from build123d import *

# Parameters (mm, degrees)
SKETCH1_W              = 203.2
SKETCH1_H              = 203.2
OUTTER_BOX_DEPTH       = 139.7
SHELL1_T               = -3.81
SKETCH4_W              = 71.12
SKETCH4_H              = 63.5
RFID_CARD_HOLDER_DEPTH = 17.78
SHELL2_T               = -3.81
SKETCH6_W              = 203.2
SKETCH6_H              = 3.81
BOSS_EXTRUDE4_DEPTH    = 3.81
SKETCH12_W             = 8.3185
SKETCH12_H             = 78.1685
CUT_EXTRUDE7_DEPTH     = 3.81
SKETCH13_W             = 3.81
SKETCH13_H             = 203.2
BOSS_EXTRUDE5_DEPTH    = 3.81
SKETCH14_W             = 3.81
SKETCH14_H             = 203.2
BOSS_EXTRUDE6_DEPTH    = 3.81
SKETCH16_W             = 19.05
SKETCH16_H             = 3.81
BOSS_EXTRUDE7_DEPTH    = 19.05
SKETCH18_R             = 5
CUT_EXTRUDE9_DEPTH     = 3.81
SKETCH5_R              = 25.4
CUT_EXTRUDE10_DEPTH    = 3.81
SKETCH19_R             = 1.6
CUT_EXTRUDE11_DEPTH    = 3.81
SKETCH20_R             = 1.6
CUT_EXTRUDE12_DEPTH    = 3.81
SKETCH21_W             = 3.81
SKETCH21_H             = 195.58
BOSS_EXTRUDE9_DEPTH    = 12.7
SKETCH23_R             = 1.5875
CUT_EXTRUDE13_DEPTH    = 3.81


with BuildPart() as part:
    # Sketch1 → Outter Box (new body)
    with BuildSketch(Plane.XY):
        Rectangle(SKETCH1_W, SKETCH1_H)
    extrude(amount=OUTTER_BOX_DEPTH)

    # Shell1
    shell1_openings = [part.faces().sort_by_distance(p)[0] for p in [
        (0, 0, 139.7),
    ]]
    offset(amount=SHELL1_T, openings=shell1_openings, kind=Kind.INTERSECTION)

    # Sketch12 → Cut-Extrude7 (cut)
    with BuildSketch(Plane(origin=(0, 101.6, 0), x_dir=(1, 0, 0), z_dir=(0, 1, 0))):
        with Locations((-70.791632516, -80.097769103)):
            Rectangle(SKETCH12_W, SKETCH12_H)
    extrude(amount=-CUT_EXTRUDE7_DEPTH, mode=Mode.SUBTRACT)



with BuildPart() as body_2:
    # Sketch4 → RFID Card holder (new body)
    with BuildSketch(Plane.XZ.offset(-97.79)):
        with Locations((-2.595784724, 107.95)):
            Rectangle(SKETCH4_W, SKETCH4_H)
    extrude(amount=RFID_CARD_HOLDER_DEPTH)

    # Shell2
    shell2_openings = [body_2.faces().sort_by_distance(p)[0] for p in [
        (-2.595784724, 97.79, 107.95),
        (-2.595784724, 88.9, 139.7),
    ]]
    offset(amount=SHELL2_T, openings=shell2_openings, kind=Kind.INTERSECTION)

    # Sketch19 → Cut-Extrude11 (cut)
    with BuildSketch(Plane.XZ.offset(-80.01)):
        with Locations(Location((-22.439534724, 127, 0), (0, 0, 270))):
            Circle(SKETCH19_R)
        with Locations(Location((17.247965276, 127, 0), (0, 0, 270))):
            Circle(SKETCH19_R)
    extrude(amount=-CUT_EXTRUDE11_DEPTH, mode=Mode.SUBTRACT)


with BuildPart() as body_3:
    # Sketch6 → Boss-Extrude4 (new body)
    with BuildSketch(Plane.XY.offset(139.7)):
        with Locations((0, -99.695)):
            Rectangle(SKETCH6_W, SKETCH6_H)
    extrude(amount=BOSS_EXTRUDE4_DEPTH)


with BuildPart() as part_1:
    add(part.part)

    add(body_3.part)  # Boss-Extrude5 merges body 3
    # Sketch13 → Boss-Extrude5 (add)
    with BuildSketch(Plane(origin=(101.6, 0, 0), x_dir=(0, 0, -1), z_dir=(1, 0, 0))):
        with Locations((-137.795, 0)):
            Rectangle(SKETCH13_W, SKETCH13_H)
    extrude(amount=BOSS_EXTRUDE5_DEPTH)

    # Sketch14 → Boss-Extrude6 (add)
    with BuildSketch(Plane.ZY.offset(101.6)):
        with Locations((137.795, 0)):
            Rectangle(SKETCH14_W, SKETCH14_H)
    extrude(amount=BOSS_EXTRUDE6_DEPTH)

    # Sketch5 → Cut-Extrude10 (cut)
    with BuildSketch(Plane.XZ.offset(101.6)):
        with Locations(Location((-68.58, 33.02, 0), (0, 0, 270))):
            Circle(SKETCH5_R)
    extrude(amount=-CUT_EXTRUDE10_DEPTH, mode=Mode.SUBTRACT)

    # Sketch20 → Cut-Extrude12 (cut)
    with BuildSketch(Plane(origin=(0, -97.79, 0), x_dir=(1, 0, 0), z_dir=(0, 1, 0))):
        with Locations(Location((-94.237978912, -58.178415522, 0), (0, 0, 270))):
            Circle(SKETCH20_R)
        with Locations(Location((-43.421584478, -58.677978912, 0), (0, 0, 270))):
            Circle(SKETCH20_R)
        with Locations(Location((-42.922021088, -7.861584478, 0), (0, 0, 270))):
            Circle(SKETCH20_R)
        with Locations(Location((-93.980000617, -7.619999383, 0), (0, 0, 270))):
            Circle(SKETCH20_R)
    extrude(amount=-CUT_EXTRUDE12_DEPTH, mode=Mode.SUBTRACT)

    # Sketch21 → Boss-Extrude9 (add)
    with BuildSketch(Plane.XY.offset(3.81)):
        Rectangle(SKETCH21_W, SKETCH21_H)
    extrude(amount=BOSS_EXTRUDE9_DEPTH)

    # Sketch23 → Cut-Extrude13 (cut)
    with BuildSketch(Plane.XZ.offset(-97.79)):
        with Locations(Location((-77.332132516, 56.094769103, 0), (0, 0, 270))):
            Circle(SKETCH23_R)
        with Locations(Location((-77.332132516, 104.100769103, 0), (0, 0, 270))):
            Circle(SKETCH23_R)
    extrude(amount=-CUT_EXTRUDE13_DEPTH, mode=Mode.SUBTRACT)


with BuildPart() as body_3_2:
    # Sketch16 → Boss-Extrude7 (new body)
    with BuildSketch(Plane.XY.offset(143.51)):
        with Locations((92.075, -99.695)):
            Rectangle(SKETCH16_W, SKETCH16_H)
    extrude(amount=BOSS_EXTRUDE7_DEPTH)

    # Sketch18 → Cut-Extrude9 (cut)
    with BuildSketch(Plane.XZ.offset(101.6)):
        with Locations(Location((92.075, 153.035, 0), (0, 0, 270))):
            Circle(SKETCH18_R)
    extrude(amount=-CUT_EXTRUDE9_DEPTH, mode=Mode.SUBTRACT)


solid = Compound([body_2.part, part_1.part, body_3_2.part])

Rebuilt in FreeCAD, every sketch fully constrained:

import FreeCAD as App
import Part
import Sketcher
from FreeCAD import Vector
Q = App.Units.Quantity


def faces_at(feature, points):
    """Names of the faces that lie closest to the given points."""
    faces = feature.Shape.Faces
    near = lambda p: min(range(len(faces)), key=lambda i: faces[i].distToShape(Part.Vertex(*p))[0])
    return sorted({f"Face{near(p) + 1}" for p in points})

doc = App.newDocument("Part")
body = doc.addObject("PartDesign::Body", "Body")

sketch1 = body.newObject("Sketcher::SketchObject", "Sketch")
sketch1.AttachmentSupport = (doc.getObject("XY_Plane"), [""])
sketch1.MapMode = "FlatFace"
sketch1.addGeometry([
    Part.LineSegment(Vector(-102, 102, 0), Vector(-102, -102, 0)),
    Part.LineSegment(Vector(-102, -102, 0), Vector(102, -102, 0)),
    Part.LineSegment(Vector(102, -102, 0), Vector(102, 102, 0)),
    Part.LineSegment(Vector(102, 102, 0), Vector(-102, 102, 0)),
], False)
sketch1.addConstraint([
    Sketcher.Constraint("Coincident", 0, 2, 1, 1),
    Sketcher.Constraint("Coincident", 1, 2, 2, 1),
    Sketcher.Constraint("Coincident", 2, 2, 3, 1),
    Sketcher.Constraint("Coincident", 3, 2, 0, 1),
    Sketcher.Constraint("Vertical", 0),
    Sketcher.Constraint("Horizontal", 1),
    Sketcher.Constraint("Vertical", 2),
    Sketcher.Constraint("Horizontal", 3),
    Sketcher.Constraint("Symmetric", 0, 2, 2, 2, -1, 1),
    Sketcher.Constraint("Equal", 3, 0),
    Sketcher.Constraint("DistanceX", 1, 1, 1, 2, Q("8 in")),
])
pad1 = body.newObject("PartDesign::Pad", "Pad")
pad1.Profile = sketch1
pad1.Length = Q("5.5 in")
doc.recompute()

thickness = body.newObject("PartDesign::Thickness", "Thickness")
thickness.Base = (pad1, faces_at(pad1, [(0, 0, 139.7)]))
thickness.Value = Q("0.15 in")
thickness.Reversed = True
thickness.Join = "Intersection"

sketch2 = body.newObject("Sketcher::SketchObject", "Sketch001")
sketch2.AttachmentSupport = (doc.getObject("XZ_Plane"), [""])
sketch2.MapMode = "FlatFace"
sketch2.AttachmentOffset = App.Placement(Vector(0, 0, -4 * 25.4), App.Rotation())
sketch2.addGeometry([
    Part.LineSegment(Vector(-75, 41, 0), Vector(-75, 119, 0)),
    Part.LineSegment(Vector(-75, 119, 0), Vector(-67, 119, 0)),
    Part.LineSegment(Vector(-67, 119, 0), Vector(-67, 41, 0)),
    Part.LineSegment(Vector(-67, 41, 0), Vector(-75, 41, 0)),
], False)
sketch2.addConstraint([
    Sketcher.Constraint("Coincident", 0, 2, 1, 1),
    Sketcher.Constraint("Coincident", 1, 2, 2, 1),
    Sketcher.Constraint("Coincident", 2, 2, 3, 1),
    Sketcher.Constraint("Coincident", 3, 2, 0, 1),
    Sketcher.Constraint("Vertical", 0),
    Sketcher.Constraint("Horizontal", 1),
    Sketcher.Constraint("Vertical", 2),
    Sketcher.Constraint("Horizontal", 3),
    Sketcher.Constraint("DistanceX", 1, 1, 1, 2, Q("0.3275 in")),
    Sketcher.Constraint("DistanceY", 0, 1, 0, 2, Q("3.0775 in")),
    Sketcher.Constraint("DistanceY", -1, 1, 0, 2, Q("119.182019 mm")),
    Sketcher.Constraint("DistanceX", 0, 2, -1, 1, Q("74.950883 mm")),
])
pocket1 = body.newObject("PartDesign::Pocket", "Pocket")
pocket1.Profile = sketch2
pocket1.Length = Q("0.15 in")
pocket1.Reversed = True
body2 = doc.addObject("PartDesign::Body", "Body001")

sketch3 = body2.newObject("Sketcher::SketchObject", "Sketch002")
sketch3.AttachmentSupport = (doc.getObject("XZ_Plane001"), [""])
sketch3.MapMode = "FlatFace"
sketch3.AttachmentOffset = App.Placement(Vector(0, 0, -3.85 * 25.4), App.Rotation())
sketch3.addGeometry([
    Part.LineSegment(Vector(-38, 140, 0), Vector(-38, 76, 0)),
    Part.LineSegment(Vector(-38, 76, 0), Vector(33, 76, 0)),
    Part.LineSegment(Vector(33, 76, 0), Vector(33, 140, 0)),
    Part.LineSegment(Vector(33, 140, 0), Vector(-38, 140, 0)),
], False)
sketch3.addConstraint([
    Sketcher.Constraint("Coincident", 0, 2, 1, 1),
    Sketcher.Constraint("Coincident", 1, 2, 2, 1),
    Sketcher.Constraint("Coincident", 2, 2, 3, 1),
    Sketcher.Constraint("Coincident", 3, 2, 0, 1),
    Sketcher.Constraint("Vertical", 0),
    Sketcher.Constraint("Horizontal", 1),
    Sketcher.Constraint("Vertical", 2),
    Sketcher.Constraint("Horizontal", 3),
    Sketcher.Constraint("DistanceX", 1, 1, 1, 2, Q("2.8 in")),
    Sketcher.Constraint("DistanceY", 0, 2, 0, 1, Q("2.5 in")),
    Sketcher.Constraint("DistanceY", -1, 1, 0, 2, Q("3 in")),
    Sketcher.Constraint("DistanceX", 0, 2, -1, 1, Q("38.155785 mm")),
])
pad2 = body2.newObject("PartDesign::Pad", "Pad001")
pad2.Profile = sketch3
pad2.Length = Q("0.7 in")
doc.recompute()

thickness2 = body2.newObject("PartDesign::Thickness", "Thickness001")
thickness2.Base = (pad2, faces_at(pad2, [(-2.596, 97.79, 107.95), (-2.596, 88.9, 139.7)]))
thickness2.Value = Q("0.15 in")
thickness2.Reversed = True
thickness2.Join = "Intersection"

sketch4 = body2.newObject("Sketcher::SketchObject", "Sketch003")
sketch4.AttachmentSupport = (doc.getObject("XZ_Plane001"), [""])
sketch4.MapMode = "FlatFace"
sketch4.AttachmentOffset = App.Placement(Vector(0, 0, -3.15 * 25.4), App.Rotation())
sketch4.addGeometry([
    Part.Circle(Vector(-22.4, 127, 0), Vector(0, 0, 1), 1.6),
    Part.Circle(Vector(17.2, 127, 0), Vector(0, 0, 1), 1.6),
], False)
sketch4.addConstraint([
    Sketcher.Constraint("Equal", 0, 1),
    Sketcher.Constraint("Horizontal", 0, 3, 1, 3),
    Sketcher.Constraint("DistanceY", -1, 1, 0, 3, Q("5 in")),
    Sketcher.Constraint("Diameter", 0, Q("3.2 mm")),
    Sketcher.Constraint("DistanceX", 0, 3, 1, 3, Q("1.5625 in")),
    Sketcher.Constraint("DistanceX", 0, 3, -1, 1, Q("22.439535 mm")),
])
pocket2 = body2.newObject("PartDesign::Pocket", "Pocket001")
pocket2.Profile = sketch4
pocket2.Length = Q("0.15 in")
body3 = doc.addObject("PartDesign::Body", "Body002")

sketch5 = body3.newObject("Sketcher::SketchObject", "Sketch004")
sketch5.AttachmentSupport = (doc.getObject("XY_Plane002"), [""])
sketch5.MapMode = "FlatFace"
sketch5.AttachmentOffset = App.Placement(Vector(0, 0, 5.5 * 25.4), App.Rotation())
sketch5.addGeometry([
    Part.LineSegment(Vector(-101.6, -97.8, 0), Vector(-101.6, -101.6, 0)),
    Part.LineSegment(Vector(-101.6, -101.6, 0), Vector(101.6, -101.6, 0)),
    Part.LineSegment(Vector(101.6, -101.6, 0), Vector(101.6, -97.8, 0)),
    Part.LineSegment(Vector(101.6, -97.8, 0), Vector(-101.6, -97.8, 0)),
], False)
sketch5.addConstraint([
    Sketcher.Constraint("Coincident", 0, 2, 1, 1),
    Sketcher.Constraint("Coincident", 1, 2, 2, 1),
    Sketcher.Constraint("Coincident", 2, 2, 3, 1),
    Sketcher.Constraint("Coincident", 3, 2, 0, 1),
    Sketcher.Constraint("Vertical", 0),
    Sketcher.Constraint("Horizontal", 1),
    Sketcher.Constraint("Vertical", 2),
    Sketcher.Constraint("Horizontal", 3),
    Sketcher.Constraint("DistanceX", 1, 1, 1, 2, Q("8 in")),
    Sketcher.Constraint("DistanceX", 0, 2, -1, 1, Q("4 in")),
    Sketcher.Constraint("DistanceY", 0, 2, -1, 1, Q("4 in")),
    Sketcher.Constraint("DistanceY", 0, 2, 0, 1, Q("0.15 in")),
])
pad3 = body3.newObject("PartDesign::Pad", "Pad002")
pad3.Profile = sketch5
pad3.Length = Q("0.15 in")
doc.recompute()

boolean = body.newObject("PartDesign::Boolean", "Boolean")
boolean.Type = "Fuse"
boolean.addObjects([body3])

sketch6 = body.newObject("Sketcher::SketchObject", "Sketch005")
sketch6.AttachmentSupport = (doc.getObject("YZ_Plane"), [""])
sketch6.MapMode = "FlatFace"
sketch6.AttachmentOffset = App.Placement(Vector(0, 0, 4 * 25.4), App.Rotation())
sketch6.addGeometry([
    Part.LineSegment(Vector(101.6, 139.7, 0), Vector(-101.6, 139.7, 0)),
    Part.LineSegment(Vector(-101.6, 139.7, 0), Vector(-101.6, 135.9, 0)),
    Part.LineSegment(Vector(-101.6, 135.9, 0), Vector(101.6, 135.9, 0)),
    Part.LineSegment(Vector(101.6, 135.9, 0), Vector(101.6, 139.7, 0)),
], False)
sketch6.addConstraint([
    Sketcher.Constraint("Coincident", 0, 2, 1, 1),
    Sketcher.Constraint("Coincident", 1, 2, 2, 1),
    Sketcher.Constraint("Coincident", 2, 2, 3, 1),
    Sketcher.Constraint("Coincident", 3, 2, 0, 1),
    Sketcher.Constraint("Horizontal", 0),
    Sketcher.Constraint("Vertical", 1),
    Sketcher.Constraint("Horizontal", 2),
    Sketcher.Constraint("Vertical", 3),
    Sketcher.Constraint("DistanceX", 0, 2, 0, 1, Q("8 in")),
    Sketcher.Constraint("DistanceX", 0, 2, -1, 1, Q("4 in")),
    Sketcher.Constraint("DistanceY", 1, 2, 1, 1, Q("0.15 in")),
    Sketcher.Constraint("DistanceY", -1, 1, 0, 2, Q("5.5 in")),
])
pad4 = body.newObject("PartDesign::Pad", "Pad003")
pad4.Profile = sketch6
pad4.Length = Q("0.15 in")

sketch7 = body.newObject("Sketcher::SketchObject", "Sketch006")
sketch7.AttachmentSupport = (doc.getObject("YZ_Plane"), [""])
sketch7.MapMode = "FlatFace"
sketch7.AttachmentOffset = App.Placement(Vector(0, 0, -4 * 25.4), App.Rotation())
sketch7.addGeometry([
    Part.LineSegment(Vector(101.6, 135.9, 0), Vector(-101.6, 135.9, 0)),
    Part.LineSegment(Vector(-101.6, 135.9, 0), Vector(-101.6, 139.7, 0)),
    Part.LineSegment(Vector(-101.6, 139.7, 0), Vector(101.6, 139.7, 0)),
    Part.LineSegment(Vector(101.6, 139.7, 0), Vector(101.6, 135.9, 0)),
], False)
sketch7.addConstraint([
    Sketcher.Constraint("Coincident", 0, 2, 1, 1),
    Sketcher.Constraint("Coincident", 1, 2, 2, 1),
    Sketcher.Constraint("Coincident", 2, 2, 3, 1),
    Sketcher.Constraint("Coincident", 3, 2, 0, 1),
    Sketcher.Constraint("Horizontal", 0),
    Sketcher.Constraint("Vertical", 1),
    Sketcher.Constraint("Horizontal", 2),
    Sketcher.Constraint("Vertical", 3),
    Sketcher.Constraint("DistanceX", 0, 2, 0, 1, Q("8 in")),
    Sketcher.Constraint("DistanceX", 0, 2, -1, 1, Q("4 in")),
    Sketcher.Constraint("DistanceY", 1, 1, 1, 2, Q("0.15 in")),
    Sketcher.Constraint("DistanceY", -1, 1, 1, 2, Q("5.5 in")),
])
pad5 = body.newObject("PartDesign::Pad", "Pad004")
pad5.Profile = sketch7
pad5.Length = Q("0.15 in")
pad5.Reversed = True

sketch8 = body.newObject("Sketcher::SketchObject", "Sketch007")
sketch8.AttachmentSupport = (doc.getObject("XZ_Plane"), [""])
sketch8.MapMode = "FlatFace"
sketch8.AttachmentOffset = App.Placement(Vector(0, 0, 4 * 25.4), App.Rotation())
sketch8.addGeometry(Part.Circle(Vector(-69, 33, 0), Vector(0, 0, 1), 25), False)
sketch8.addConstraint([
    Sketcher.Constraint("Diameter", 0, Q("2 in")),
    Sketcher.Constraint("DistanceX", 0, 3, -1, 1, Q("2.7 in")),
    Sketcher.Constraint("DistanceY", -1, 1, 0, 3, Q("1.3 in")),
])
pocket3 = body.newObject("PartDesign::Pocket", "Pocket002")
pocket3.Profile = sketch8
pocket3.Length = Q("0.15 in")

sketch9 = body.newObject("Sketcher::SketchObject", "Sketch008")
sketch9.AttachmentSupport = (doc.getObject("XZ_Plane"), [""])
sketch9.MapMode = "FlatFace"
sketch9.AttachmentOffset = App.Placement(Vector(0, 0, 3.85 * 25.4), App.Rotation())
sketch9.addGeometry([
    Part.Circle(Vector(-94.2, 58.2, 0), Vector(0, 0, 1), 1.6),
    Part.Circle(Vector(-43.4, 58.7, 0), Vector(0, 0, 1), 1.6),
    Part.Circle(Vector(-42.9, 7.9, 0), Vector(0, 0, 1), 1.6),
    Part.Circle(Vector(-94, 7.6, 0), Vector(0, 0, 1), 1.6),
], False)
sketch9.addConstraint([
    Sketcher.Constraint("Equal", 0, 1),
    Sketcher.Constraint("Equal", 1, 2),
    Sketcher.Constraint("Equal", 2, 3),
    Sketcher.Constraint("DistanceX", 3, 3, -1, 1, Q("3.7 in")),
    Sketcher.Constraint("DistanceY", -1, 1, 3, 3, Q("0.3 in")),
    Sketcher.Constraint("Diameter", 0, Q("3.2 mm")),
    Sketcher.Constraint("DistanceX", 0, 3, -1, 1, Q("94.237979 mm")),
    Sketcher.Constraint("DistanceY", -1, 1, 1, 3, Q("58.677979 mm")),
    Sketcher.Constraint("DistanceX", 2, 3, -1, 1, Q("42.922021 mm")),
    Sketcher.Constraint("DistanceY", 2, 3, 0, 3, Q("50.316831 mm")),
    Sketcher.Constraint("DistanceY", -1, 1, 0, 3, Q("58.178416 mm")),
    Sketcher.Constraint("DistanceX", 1, 3, -1, 1, Q("43.421584 mm")),
])
pocket4 = body.newObject("PartDesign::Pocket", "Pocket003")
pocket4.Profile = sketch9
pocket4.Length = Q("0.15 in")
pocket4.Reversed = True

sketch10 = body.newObject("Sketcher::SketchObject", "Sketch009")
sketch10.AttachmentSupport = (doc.getObject("XY_Plane"), [""])
sketch10.MapMode = "FlatFace"
sketch10.AttachmentOffset = App.Placement(Vector(0, 0, 0.15 * 25.4), App.Rotation())
sketch10.addGeometry([
    Part.LineSegment(Vector(-1.9, 97.8, 0), Vector(-1.9, -97.8, 0)),
    Part.LineSegment(Vector(-1.9, -97.8, 0), Vector(1.9, -97.8, 0)),
    Part.LineSegment(Vector(1.9, -97.8, 0), Vector(1.9, 97.8, 0)),
    Part.LineSegment(Vector(1.9, 97.8, 0), Vector(-1.9, 97.8, 0)),
], False)
sketch10.addConstraint([
    Sketcher.Constraint("Coincident", 0, 2, 1, 1),
    Sketcher.Constraint("Coincident", 1, 2, 2, 1),
    Sketcher.Constraint("Coincident", 2, 2, 3, 1),
    Sketcher.Constraint("Coincident", 3, 2, 0, 1),
    Sketcher.Constraint("Vertical", 0),
    Sketcher.Constraint("Horizontal", 1),
    Sketcher.Constraint("Vertical", 2),
    Sketcher.Constraint("Horizontal", 3),
    Sketcher.Constraint("Symmetric", 0, 2, 2, 2, -1, 1),
    Sketcher.Constraint("DistanceY", 0, 2, 0, 1, Q("7.7 in")),
    Sketcher.Constraint("DistanceX", 1, 1, 1, 2, Q("0.15 in")),
])
pad6 = body.newObject("PartDesign::Pad", "Pad005")
pad6.Profile = sketch10
pad6.Length = Q("0.5 in")

sketch11 = body.newObject("Sketcher::SketchObject", "Sketch010")
sketch11.AttachmentSupport = (doc.getObject("XZ_Plane"), [""])
sketch11.MapMode = "FlatFace"
sketch11.AttachmentOffset = App.Placement(Vector(0, 0, -3.85 * 25.4), App.Rotation())
sketch11.addGeometry([
    Part.Circle(Vector(-77.3, 56.1, 0), Vector(0, 0, 1), 1.6),
    Part.Circle(Vector(-77.3, 104.1, 0), Vector(0, 0, 1), 1.6),
], False)
sketch11.addConstraint([
    Sketcher.Constraint("Equal", 0, 1),
    Sketcher.Constraint("Vertical", 0, 3, 1, 3),
    Sketcher.Constraint("Diameter", 0, Q("0.125 in")),
    Sketcher.Constraint("DistanceY", 0, 3, 1, 3, Q("1.89 in")),
    Sketcher.Constraint("DistanceY", -1, 1, 0, 3, Q("56.094769 mm")),
    Sketcher.Constraint("DistanceX", 0, 3, -1, 1, Q("77.332133 mm")),
])
pocket5 = body.newObject("PartDesign::Pocket", "Pocket004")
pocket5.Profile = sketch11
pocket5.Length = Q("0.15 in")
body4 = doc.addObject("PartDesign::Body", "Body003")

sketch12 = body4.newObject("Sketcher::SketchObject", "Sketch011")
sketch12.AttachmentSupport = (doc.getObject("XY_Plane003"), [""])
sketch12.MapMode = "FlatFace"
sketch12.AttachmentOffset = App.Placement(Vector(0, 0, 5.65 * 25.4), App.Rotation())
sketch12.addGeometry([
    Part.LineSegment(Vector(82.5, -97.8, 0), Vector(82.5, -101.6, 0)),
    Part.LineSegment(Vector(82.5, -101.6, 0), Vector(101.6, -101.6, 0)),
    Part.LineSegment(Vector(101.6, -101.6, 0), Vector(101.6, -97.8, 0)),
    Part.LineSegment(Vector(101.6, -97.8, 0), Vector(82.5, -97.8, 0)),
], False)
sketch12.addConstraint([
    Sketcher.Constraint("Coincident", 0, 2, 1, 1),
    Sketcher.Constraint("Coincident", 1, 2, 2, 1),
    Sketcher.Constraint("Coincident", 2, 2, 3, 1),
    Sketcher.Constraint("Coincident", 3, 2, 0, 1),
    Sketcher.Constraint("Vertical", 0),
    Sketcher.Constraint("Horizontal", 1),
    Sketcher.Constraint("Vertical", 2),
    Sketcher.Constraint("Horizontal", 3),
    Sketcher.Constraint("DistanceY", 0, 2, -1, 1, Q("4 in")),
    Sketcher.Constraint("DistanceX", -1, 1, 1, 2, Q("4 in")),
    Sketcher.Constraint("DistanceX", 1, 1, 1, 2, Q("0.75 in")),
    Sketcher.Constraint("DistanceY", 0, 2, 0, 1, Q("0.15 in")),
])
pad7 = body4.newObject("PartDesign::Pad", "Pad006")
pad7.Profile = sketch12
pad7.Length = Q("0.75 in")

sketch13 = body4.newObject("Sketcher::SketchObject", "Sketch012")
sketch13.AttachmentSupport = (doc.getObject("XZ_Plane003"), [""])
sketch13.MapMode = "FlatFace"
sketch13.AttachmentOffset = App.Placement(Vector(0, 0, 4 * 25.4), App.Rotation())
sketch13.addGeometry(Part.Circle(Vector(92, 153, 0), Vector(0, 0, 1), 5), False)
sketch13.addConstraint([
    Sketcher.Constraint("Diameter", 0, Q("10 mm")),
    Sketcher.Constraint("DistanceX", -1, 1, 0, 3, Q("3.625 in")),
    Sketcher.Constraint("DistanceY", -1, 1, 0, 3, Q("6.025 in")),
])
pocket6 = body4.newObject("PartDesign::Pocket", "Pocket005")
pocket6.Profile = sketch13
pocket6.Length = Q("0.15 in")

doc.recompute()
